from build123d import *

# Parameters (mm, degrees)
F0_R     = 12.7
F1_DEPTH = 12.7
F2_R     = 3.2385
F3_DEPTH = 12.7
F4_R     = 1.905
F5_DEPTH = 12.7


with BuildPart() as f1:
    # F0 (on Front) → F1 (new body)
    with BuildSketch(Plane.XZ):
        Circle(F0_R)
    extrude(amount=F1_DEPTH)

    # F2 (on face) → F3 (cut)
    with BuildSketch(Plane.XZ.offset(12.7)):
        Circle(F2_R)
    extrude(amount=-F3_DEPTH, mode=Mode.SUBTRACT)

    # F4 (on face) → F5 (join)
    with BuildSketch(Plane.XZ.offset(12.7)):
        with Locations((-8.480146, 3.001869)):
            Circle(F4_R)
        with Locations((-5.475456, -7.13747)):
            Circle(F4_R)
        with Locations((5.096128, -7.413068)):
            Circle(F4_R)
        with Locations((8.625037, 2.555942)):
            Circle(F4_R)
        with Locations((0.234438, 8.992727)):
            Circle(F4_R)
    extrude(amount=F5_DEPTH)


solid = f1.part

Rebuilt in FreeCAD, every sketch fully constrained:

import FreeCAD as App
import Part
import Sketcher
Q = App.Units.Quantity

doc = App.newDocument("Part")
body = doc.addObject("PartDesign::Body", "Body")

# Sketch on XZ plane
sketch1 = doc.addObject("Sketcher::SketchObject", "Sketch")
body.addObject(sketch1)
sketch1.AttachmentSupport = (doc.XZ_Plane, [""])
sketch1.MapMode = "FlatFace"
sketch1.addGeometry(Part.Circle(App.Vector(0, 0, 0), App.Vector(0, 0, 1), 13), False)
sketch1.addConstraint([
    Sketcher.Constraint("Coincident", 0, 3, -1, 1),
    Sketcher.Constraint("Diameter", 0, Q("1 in")),
])
pad1 = doc.addObject("PartDesign::Pad", "Pad")
body.addObject(pad1)
pad1.Profile = sketch1
pad1.Length = Q("0.5 in")

# Sketch on XZ plane
sketch2 = doc.addObject("Sketcher::SketchObject", "Sketch001")
body.addObject(sketch2)
sketch2.AttachmentSupport = (doc.XZ_Plane, [""])
sketch2.MapMode = "FlatFace"
sketch2.AttachmentOffset = App.Placement(App.Vector(0, 0, 0.5 * 25.4), App.Rotation())
sketch2.addGeometry(Part.Circle(App.Vector(0, 0, 0), App.Vector(0, 0, 1), 3.2), False)
sketch2.addConstraint([
    Sketcher.Constraint("Coincident", 0, 3, -1, 1),
    Sketcher.Constraint("Diameter", 0, Q("0.255 in")),
])
pocket1 = doc.addObject("PartDesign::Pocket", "Pocket")
body.addObject(pocket1)
pocket1.Profile = sketch2
pocket1.Length = Q("0.5 in")

# Sketch on XZ plane
sketch3 = doc.addObject("Sketcher::SketchObject", "Sketch002")
body.addObject(sketch3)
sketch3.AttachmentSupport = (doc.XZ_Plane, [""])
sketch3.MapMode = "FlatFace"
sketch3.AttachmentOffset = App.Placement(App.Vector(0, 0, 0.5 * 25.4), App.Rotation())
sketch3.addGeometry([
    Part.Circle(App.Vector(-8.5, 3, 0), App.Vector(0, 0, 1), 1.9),  # 0
    Part.Circle(App.Vector(-5.5, -7.1, 0), App.Vector(0, 0, 1), 1.9),  # 1
    Part.Circle(App.Vector(5.1, -7.4, 0), App.Vector(0, 0, 1), 1.9),  # 2
    Part.Circle(App.Vector(8.6, 2.6, 0), App.Vector(0, 0, 1), 1.9),  # 3
    Part.Circle(App.Vector(0.2, 9, 0), App.Vector(0, 0, 1), 1.9),  # 4
], False)
sketch3.addConstraint([
    Sketcher.Constraint("Equal", 0, 1),
    Sketcher.Constraint("Equal", 1, 2),
    Sketcher.Constraint("Equal", 2, 3),
    Sketcher.Constraint("Equal", 3, 4),
    Sketcher.Constraint("Diameter", 0, Q("0.15 in")),
    Sketcher.Constraint("DistanceX", 4, 3, 3, 3, Q("8.390599 mm")),
    Sketcher.Constraint("DistanceY", -1, 1, 0, 3, Q("3.001869 mm")),
    Sketcher.Constraint("DistanceY", 1, 3, -1, 1, Q("7.13747 mm")),
    Sketcher.Constraint("DistanceX", -1, 1, 2, 3, Q("5.096128 mm")),
    Sketcher.Constraint("DistanceY", -1, 1, 3, 3, Q("2.555942 mm")),
    Sketcher.Constraint("DistanceX", 0, 3, 1, 3, Q("3.00469 mm")),
    Sketcher.Constraint("DistanceX", 2, 3, 3, 3, Q("3.528909 mm")),
    Sketcher.Constraint("DistanceY", 2, 3, 3, 3, Q("9.96901 mm")),
    Sketcher.Constraint("DistanceY", 0, 3, 4, 3, Q("5.990858 mm")),
    Sketcher.Constraint("DistanceX", 0, 3, -1, 1, Q("8.480146 mm")),
])
pad2 = doc.addObject("PartDesign::Pad", "Pad001")
body.addObject(pad2)
pad2.Profile = sketch3
pad2.Length = Q("0.5 in")

doc.recompute()
